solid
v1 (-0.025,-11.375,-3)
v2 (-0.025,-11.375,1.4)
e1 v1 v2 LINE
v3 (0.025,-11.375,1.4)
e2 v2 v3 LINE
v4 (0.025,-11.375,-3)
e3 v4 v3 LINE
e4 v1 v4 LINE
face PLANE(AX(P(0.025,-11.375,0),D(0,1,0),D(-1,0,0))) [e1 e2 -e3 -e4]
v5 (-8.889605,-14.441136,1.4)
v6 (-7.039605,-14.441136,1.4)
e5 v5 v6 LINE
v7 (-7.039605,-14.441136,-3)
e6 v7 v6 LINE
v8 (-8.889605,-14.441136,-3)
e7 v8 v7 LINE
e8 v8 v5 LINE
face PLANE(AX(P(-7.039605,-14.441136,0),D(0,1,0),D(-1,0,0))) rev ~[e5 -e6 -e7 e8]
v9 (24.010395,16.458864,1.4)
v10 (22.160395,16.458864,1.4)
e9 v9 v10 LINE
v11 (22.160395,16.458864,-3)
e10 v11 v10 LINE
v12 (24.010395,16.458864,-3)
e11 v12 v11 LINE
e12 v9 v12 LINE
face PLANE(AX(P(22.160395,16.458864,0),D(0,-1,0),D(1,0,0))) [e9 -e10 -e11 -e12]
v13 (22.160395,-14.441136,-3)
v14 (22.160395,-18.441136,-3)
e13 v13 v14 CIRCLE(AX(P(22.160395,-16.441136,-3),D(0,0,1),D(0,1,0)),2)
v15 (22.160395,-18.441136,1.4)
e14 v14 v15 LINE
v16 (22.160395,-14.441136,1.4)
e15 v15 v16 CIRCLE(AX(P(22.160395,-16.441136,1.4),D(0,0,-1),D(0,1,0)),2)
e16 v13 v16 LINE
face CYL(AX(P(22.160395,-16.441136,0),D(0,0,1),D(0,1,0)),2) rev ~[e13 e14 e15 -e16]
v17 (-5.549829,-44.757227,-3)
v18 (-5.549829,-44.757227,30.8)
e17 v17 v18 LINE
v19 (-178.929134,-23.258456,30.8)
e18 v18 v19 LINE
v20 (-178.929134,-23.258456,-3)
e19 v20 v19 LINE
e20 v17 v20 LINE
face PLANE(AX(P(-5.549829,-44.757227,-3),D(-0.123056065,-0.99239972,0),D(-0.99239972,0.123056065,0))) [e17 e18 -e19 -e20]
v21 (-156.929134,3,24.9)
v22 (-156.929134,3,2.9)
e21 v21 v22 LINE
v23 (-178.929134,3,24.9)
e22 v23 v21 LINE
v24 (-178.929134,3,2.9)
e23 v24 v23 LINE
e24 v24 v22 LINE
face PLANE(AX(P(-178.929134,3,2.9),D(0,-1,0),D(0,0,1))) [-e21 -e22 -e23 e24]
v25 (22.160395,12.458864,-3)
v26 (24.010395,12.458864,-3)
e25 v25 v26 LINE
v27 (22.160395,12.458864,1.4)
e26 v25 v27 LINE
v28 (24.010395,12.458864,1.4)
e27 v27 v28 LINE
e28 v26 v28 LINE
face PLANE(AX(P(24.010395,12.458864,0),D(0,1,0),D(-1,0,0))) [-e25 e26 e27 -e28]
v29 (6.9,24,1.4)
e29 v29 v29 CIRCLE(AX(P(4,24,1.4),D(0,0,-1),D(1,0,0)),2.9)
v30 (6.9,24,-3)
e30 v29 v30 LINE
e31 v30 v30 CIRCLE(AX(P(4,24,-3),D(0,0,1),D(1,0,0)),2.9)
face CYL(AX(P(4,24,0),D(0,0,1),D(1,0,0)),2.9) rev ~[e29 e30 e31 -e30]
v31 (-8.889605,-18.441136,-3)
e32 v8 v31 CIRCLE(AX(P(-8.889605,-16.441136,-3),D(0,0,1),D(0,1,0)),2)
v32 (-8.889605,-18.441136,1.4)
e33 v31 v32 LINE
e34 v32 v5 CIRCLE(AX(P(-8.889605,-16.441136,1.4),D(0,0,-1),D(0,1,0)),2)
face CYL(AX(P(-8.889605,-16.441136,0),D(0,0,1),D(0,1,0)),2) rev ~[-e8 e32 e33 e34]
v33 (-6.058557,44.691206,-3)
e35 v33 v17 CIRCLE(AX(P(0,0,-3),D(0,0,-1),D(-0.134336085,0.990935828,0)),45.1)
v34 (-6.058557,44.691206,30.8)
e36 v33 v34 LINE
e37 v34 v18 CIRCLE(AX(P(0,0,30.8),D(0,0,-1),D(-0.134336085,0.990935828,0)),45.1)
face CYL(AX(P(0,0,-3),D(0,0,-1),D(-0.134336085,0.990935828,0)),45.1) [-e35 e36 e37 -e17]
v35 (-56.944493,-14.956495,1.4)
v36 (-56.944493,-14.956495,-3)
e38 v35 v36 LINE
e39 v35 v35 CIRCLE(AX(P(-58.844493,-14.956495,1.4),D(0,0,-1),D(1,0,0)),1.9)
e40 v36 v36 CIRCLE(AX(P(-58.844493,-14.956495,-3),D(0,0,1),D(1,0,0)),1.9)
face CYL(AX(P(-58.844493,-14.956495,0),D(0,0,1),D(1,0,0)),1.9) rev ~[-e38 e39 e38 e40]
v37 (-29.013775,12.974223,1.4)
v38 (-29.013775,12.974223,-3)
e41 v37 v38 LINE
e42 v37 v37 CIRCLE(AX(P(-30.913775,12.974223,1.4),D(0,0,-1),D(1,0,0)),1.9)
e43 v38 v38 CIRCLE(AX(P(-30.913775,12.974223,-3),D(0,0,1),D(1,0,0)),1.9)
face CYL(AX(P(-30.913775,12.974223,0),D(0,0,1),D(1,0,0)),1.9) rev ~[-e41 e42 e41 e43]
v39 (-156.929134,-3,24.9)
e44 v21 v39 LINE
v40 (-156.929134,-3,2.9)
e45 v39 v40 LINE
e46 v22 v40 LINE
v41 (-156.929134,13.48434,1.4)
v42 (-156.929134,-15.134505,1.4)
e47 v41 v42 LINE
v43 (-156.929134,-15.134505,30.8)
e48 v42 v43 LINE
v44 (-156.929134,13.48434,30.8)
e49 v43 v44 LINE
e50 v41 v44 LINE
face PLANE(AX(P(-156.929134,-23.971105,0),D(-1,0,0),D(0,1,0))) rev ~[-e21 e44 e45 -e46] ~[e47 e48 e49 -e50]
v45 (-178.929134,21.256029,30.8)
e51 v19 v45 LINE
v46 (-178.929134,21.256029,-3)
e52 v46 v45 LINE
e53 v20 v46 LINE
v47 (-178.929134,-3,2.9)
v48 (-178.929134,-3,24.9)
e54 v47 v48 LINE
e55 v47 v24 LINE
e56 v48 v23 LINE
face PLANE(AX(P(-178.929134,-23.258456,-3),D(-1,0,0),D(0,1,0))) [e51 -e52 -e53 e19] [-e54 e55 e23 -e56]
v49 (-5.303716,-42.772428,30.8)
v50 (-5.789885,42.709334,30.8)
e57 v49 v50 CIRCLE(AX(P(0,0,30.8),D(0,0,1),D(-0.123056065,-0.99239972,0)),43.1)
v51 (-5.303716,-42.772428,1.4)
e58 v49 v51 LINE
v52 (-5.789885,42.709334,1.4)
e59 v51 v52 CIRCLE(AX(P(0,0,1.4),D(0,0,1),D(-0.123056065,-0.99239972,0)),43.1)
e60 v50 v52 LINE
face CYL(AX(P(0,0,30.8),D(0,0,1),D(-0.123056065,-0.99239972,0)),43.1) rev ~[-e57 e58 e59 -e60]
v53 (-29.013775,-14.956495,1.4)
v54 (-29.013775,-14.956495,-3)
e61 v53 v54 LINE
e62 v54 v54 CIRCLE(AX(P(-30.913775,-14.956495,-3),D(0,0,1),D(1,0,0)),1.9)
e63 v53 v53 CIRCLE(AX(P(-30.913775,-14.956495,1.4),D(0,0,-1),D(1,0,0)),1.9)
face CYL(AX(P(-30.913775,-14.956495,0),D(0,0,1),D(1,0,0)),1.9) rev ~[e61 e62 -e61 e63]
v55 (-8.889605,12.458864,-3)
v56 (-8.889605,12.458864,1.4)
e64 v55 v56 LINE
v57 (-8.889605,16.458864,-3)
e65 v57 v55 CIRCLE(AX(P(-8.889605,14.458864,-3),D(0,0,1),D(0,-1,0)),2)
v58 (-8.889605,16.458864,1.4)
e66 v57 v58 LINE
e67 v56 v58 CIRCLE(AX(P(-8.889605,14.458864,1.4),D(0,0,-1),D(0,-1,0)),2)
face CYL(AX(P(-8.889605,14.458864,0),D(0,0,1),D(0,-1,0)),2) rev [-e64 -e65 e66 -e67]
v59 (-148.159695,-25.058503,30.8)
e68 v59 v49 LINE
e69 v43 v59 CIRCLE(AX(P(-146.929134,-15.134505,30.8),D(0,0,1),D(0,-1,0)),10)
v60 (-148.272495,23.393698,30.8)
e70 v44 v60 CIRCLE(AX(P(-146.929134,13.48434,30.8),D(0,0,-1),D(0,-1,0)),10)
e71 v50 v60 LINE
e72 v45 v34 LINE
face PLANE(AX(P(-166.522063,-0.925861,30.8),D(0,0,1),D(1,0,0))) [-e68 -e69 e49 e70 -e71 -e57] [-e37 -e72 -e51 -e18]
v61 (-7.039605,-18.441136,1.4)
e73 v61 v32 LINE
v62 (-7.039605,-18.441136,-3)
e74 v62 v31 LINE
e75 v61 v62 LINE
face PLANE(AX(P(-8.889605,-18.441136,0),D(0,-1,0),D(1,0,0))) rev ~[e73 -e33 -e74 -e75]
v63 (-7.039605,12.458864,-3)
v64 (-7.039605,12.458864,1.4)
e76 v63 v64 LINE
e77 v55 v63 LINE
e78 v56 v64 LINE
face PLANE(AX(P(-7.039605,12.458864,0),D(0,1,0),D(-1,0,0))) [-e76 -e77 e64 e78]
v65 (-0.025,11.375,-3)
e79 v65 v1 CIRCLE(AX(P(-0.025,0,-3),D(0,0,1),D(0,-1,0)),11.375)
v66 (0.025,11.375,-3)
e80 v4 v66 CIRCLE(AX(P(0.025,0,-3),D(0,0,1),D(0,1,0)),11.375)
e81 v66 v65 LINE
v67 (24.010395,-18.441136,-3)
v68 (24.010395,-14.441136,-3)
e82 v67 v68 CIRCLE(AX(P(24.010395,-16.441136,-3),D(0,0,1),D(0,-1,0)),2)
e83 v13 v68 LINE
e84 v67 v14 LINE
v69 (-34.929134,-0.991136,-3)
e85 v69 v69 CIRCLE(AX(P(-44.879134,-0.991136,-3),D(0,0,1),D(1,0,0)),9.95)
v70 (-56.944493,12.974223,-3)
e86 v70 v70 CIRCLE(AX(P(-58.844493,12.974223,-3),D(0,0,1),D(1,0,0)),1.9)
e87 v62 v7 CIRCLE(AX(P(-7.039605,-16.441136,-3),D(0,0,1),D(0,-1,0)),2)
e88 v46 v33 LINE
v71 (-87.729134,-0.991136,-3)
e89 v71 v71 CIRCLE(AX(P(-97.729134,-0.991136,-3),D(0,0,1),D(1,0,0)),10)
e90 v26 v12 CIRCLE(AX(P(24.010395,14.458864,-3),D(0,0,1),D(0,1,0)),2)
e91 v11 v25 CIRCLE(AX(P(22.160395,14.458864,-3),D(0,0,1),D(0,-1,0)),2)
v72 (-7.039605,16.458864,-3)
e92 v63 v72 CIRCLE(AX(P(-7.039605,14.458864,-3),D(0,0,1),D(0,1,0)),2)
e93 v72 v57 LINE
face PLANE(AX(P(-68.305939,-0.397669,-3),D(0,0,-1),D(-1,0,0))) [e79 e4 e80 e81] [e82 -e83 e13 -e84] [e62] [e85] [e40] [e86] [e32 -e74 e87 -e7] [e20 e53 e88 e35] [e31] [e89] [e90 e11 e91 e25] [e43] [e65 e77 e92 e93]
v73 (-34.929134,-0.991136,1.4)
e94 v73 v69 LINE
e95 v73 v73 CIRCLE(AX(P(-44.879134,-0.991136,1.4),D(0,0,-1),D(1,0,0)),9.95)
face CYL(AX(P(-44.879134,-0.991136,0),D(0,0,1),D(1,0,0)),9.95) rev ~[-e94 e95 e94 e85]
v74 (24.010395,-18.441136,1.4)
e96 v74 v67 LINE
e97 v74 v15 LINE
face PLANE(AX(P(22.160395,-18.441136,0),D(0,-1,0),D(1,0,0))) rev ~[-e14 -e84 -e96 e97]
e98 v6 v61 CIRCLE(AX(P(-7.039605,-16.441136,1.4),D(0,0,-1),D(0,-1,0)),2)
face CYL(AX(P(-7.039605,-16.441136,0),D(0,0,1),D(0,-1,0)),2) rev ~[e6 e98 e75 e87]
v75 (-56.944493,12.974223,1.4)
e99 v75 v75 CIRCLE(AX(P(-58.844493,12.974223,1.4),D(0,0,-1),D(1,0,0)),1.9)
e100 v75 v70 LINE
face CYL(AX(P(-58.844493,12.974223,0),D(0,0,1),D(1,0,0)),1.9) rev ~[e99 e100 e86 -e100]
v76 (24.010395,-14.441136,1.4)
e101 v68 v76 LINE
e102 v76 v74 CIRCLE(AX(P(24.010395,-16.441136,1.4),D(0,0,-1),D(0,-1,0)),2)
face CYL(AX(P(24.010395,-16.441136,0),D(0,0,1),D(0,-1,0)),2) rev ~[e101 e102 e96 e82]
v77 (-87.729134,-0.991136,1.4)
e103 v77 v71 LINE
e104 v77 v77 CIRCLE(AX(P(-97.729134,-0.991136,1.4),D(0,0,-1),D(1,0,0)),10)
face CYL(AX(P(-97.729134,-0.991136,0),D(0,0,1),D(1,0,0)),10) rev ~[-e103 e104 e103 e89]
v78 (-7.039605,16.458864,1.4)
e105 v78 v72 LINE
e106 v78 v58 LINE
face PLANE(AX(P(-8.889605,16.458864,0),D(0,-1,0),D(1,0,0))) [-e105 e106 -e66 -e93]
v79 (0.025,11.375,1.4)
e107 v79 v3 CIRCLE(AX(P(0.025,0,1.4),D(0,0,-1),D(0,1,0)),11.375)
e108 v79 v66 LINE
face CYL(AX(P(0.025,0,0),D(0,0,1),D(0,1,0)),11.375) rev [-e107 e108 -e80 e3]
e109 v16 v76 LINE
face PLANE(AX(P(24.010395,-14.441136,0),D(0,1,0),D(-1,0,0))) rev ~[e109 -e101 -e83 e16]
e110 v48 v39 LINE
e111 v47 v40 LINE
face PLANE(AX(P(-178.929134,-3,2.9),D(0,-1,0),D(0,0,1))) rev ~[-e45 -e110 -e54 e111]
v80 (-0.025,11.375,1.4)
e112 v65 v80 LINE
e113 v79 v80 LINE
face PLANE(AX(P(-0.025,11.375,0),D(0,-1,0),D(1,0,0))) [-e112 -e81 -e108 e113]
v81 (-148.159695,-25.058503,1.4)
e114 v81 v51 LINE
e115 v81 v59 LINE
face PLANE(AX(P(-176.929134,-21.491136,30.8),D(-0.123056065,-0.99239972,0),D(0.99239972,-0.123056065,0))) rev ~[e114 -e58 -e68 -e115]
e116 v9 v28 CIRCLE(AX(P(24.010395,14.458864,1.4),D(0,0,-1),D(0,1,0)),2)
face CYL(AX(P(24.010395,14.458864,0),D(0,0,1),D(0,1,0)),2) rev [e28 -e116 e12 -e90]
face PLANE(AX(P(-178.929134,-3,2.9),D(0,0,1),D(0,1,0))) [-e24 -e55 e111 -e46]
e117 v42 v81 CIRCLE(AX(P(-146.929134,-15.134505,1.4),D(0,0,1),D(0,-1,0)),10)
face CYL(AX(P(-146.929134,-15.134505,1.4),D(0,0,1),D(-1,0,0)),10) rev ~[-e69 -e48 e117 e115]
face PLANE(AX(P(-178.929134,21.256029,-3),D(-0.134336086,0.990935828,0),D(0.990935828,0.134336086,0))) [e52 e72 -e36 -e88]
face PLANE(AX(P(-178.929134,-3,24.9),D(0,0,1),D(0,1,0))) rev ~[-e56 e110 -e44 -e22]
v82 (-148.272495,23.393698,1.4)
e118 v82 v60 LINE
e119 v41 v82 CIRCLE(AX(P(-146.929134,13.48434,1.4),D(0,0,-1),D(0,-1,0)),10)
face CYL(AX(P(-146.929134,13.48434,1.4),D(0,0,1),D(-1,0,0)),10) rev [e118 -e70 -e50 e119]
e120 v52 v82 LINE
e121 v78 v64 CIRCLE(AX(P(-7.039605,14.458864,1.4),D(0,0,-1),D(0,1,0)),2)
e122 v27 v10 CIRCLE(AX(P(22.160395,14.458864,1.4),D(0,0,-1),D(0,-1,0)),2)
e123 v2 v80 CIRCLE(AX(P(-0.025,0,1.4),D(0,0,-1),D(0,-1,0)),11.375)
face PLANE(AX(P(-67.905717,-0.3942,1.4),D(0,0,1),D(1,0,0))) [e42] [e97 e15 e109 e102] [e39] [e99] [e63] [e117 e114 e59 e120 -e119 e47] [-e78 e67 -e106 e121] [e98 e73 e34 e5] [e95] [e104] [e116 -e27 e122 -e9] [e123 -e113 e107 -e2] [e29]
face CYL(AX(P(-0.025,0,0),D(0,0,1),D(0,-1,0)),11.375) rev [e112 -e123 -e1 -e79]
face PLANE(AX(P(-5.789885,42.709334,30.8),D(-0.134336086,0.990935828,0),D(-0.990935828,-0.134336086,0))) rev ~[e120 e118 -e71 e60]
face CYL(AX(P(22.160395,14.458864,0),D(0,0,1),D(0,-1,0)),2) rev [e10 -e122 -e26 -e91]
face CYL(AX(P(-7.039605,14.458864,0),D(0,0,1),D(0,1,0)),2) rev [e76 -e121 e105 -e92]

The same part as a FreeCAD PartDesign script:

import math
import FreeCAD as App
import Part
import Sketcher
Q = App.Units.Quantity


def edges_at(feature, points):
    """Names of the edges that pass closest to the given points."""
    edges = feature.Shape.Edges
    near = lambda p: min(range(len(edges)), key=lambda i: edges[i].distToShape(Part.Vertex(*p))[0])
    return sorted({f"Edge{near(p) + 1}" for p in points})


def add_polygon(sketch, points):
    """Adds a closed chain of lines whose ends are joined by coincident constraints."""
    first, n = sketch.GeometryCount, len(points)
    for a, b in zip(points, points[1:] + points[:1]):
        sketch.addGeometry(Part.LineSegment(App.Vector(*a, 0), App.Vector(*b, 0)), False)
    for i in range(n):
        sketch.addConstraint(Sketcher.Constraint("Coincident", first + i, 2, first + (i + 1) % n, 1))

doc = App.newDocument("Part")
params = doc.addObject("Spreadsheet::Sheet", "Params")
for row, (alias, value) in enumerate([
    ("sketch1_diameter", "20 mm"),
    ("sketch1_radius", "2 mm"),
    ("sketch1_diameter2", "3.8 mm"),
    ("sketch1_diameter3", "19.9 mm"),
    ("sketch1_diameter4", "5.8 mm"),
    ("pad1_length", "30.8 mm"),
    ("sketch2_diameter", "20 mm"),
    ("sketch2_radius", "2 mm"),
    ("sketch2_diameter2", "3.8 mm"),
    ("sketch2_diameter3", "19.9 mm"),
    ("sketch2_diameter4", "5.8 mm"),
    ("pad2_length", "3 mm"),
    ("sketch3_radius", "45.1 mm"),
    ("sketch4_radius", "43.1 mm"),
    ("sketch4_height", "41 mm"),
    ("pocket1_length", "29.4 mm"),
    ("sketch5_diameter", "20 mm"),
    ("sketch5_radius", "2 mm"),
    ("sketch5_diameter2", "19.9 mm"),
    ("sketch5_diameter3", "3.8 mm"),
    ("sketch5_diameter4", "5.8 mm"),
    ("sketch6_height", "41 mm"),
    ("pad4_length", "30.8 mm"),
    ("fillet_radius", "10 mm"),
    ("sketch7_width", "6 mm"),
    ("sketch7_height", "22 mm"),
], start=1):
    params.set(f"A{row}", alias)
    params.set(f"B{row}", "=" + value)
    params.setAlias(f"B{row}", alias)

body = doc.addObject("PartDesign::Body", "Body")

# Sketch on XY plane
sketch1 = body.newObject("Sketcher::SketchObject", "Sketch")
sketch1.AttachmentSupport = (doc.getObject("XY_Plane"), [""])
sketch1.MapMode = "FlatFace"
sketch1.addGeometry([
    Part.LineSegment(App.Vector(-176.929134, 19.508864, 0), App.Vector(-176.929134, -21.491136, 0)),  # 0
    Part.LineSegment(App.Vector(-176.929134, -21.491136, 0), App.Vector(-5.303716, -42.772428, 0)),  # 1
    Part.ArcOfCircle(Part.Circle(App.Vector(0, 0, 0), App.Vector(0, 0, 1), 43.1), math.radians(-97.06851), math.radians(97.720231)),  # 2
    Part.LineSegment(App.Vector(-5.789885, 42.709334, 0), App.Vector(-176.929134, 19.508864, 0)),  # 3
    Part.Circle(App.Vector(-58.844493, -14.956495, 0), App.Vector(0, 0, 1), 1.9),  # 4
    Part.Circle(App.Vector(-97.729134, -0.991136, 0), App.Vector(0, 0, 1), 10),  # 5
    Part.Circle(App.Vector(-44.879134, -0.991136, 0), App.Vector(0, 0, 1), 9.95),  # 6
    Part.Circle(App.Vector(-30.913775, -14.956495, 0), App.Vector(0, 0, 1), 1.9),  # 7
    Part.ArcOfCircle(Part.Circle(App.Vector(-7.039605, -16.441136, 0), App.Vector(0, 0, 1), 2), math.radians(-90), math.radians(90)),  # 8
    Part.LineSegment(App.Vector(-7.039605, -18.441136, 0), App.Vector(-8.889605, -18.441136, 0)),  # 9
    Part.ArcOfCircle(Part.Circle(App.Vector(-8.889605, -16.441136, 0), App.Vector(0, 0, 1), 2), math.radians(90), math.radians(270)),  # 10
    Part.LineSegment(App.Vector(-8.889605, -14.441136, 0), App.Vector(-7.039605, -14.441136, 0)),  # 11
    Part.ArcOfCircle(Part.Circle(App.Vector(24.010395, -16.441136, 0), App.Vector(0, 0, 1), 2), math.radians(-90), math.radians(90)),  # 12
    Part.LineSegment(App.Vector(24.010395, -18.441136, 0), App.Vector(22.160395, -18.441136, 0)),  # 13
    Part.ArcOfCircle(Part.Circle(App.Vector(22.160395, -16.441136, 0), App.Vector(0, 0, 1), 2), math.radians(90), math.radians(270)),  # 14
    Part.LineSegment(App.Vector(22.160395, -14.441136, 0), App.Vector(24.010395, -14.441136, 0)),  # 15
    Part.LineSegment(App.Vector(0.025, -11.375, 0), App.Vector(-0.025, -11.375, 0)),  # 16
    Part.ArcOfCircle(Part.Circle(App.Vector(-0.025, 0, 0), App.Vector(0, 0, 1), 11.375), math.radians(90), math.radians(270)),  # 17
    Part.LineSegment(App.Vector(-0.025, 11.375, 0), App.Vector(0.025, 11.375, 0)),  # 18
    Part.ArcOfCircle(Part.Circle(App.Vector(0.025, 0, 0), App.Vector(0, 0, 1), 11.375), math.radians(-90), math.radians(90)),  # 19
    Part.Circle(App.Vector(-58.844493, 12.974223, 0), App.Vector(0, 0, 1), 1.9),  # 20
    Part.Circle(App.Vector(-30.913775, 12.974223, 0), App.Vector(0, 0, 1), 1.9),  # 21
    Part.LineSegment(App.Vector(-7.039605, 12.458864, 0), App.Vector(-8.889605, 12.458864, 0)),  # 22
    Part.ArcOfCircle(Part.Circle(App.Vector(-8.889605, 14.458864, 0), App.Vector(0, 0, 1), 2), math.radians(90), math.radians(270)),  # 23
    Part.LineSegment(App.Vector(-8.889605, 16.458864, 0), App.Vector(-7.039605, 16.458864, 0)),  # 24
    Part.ArcOfCircle(Part.Circle(App.Vector(-7.039605, 14.458864, 0), App.Vector(0, 0, 1), 2), math.radians(-90), math.radians(90)),  # 25
    Part.ArcOfCircle(Part.Circle(App.Vector(22.160395, 14.458864, 0), App.Vector(0, 0, 1), 2), math.radians(90), math.radians(270)),  # 26
    Part.LineSegment(App.Vector(22.160395, 16.458864, 0), App.Vector(24.010395, 16.458864, 0)),  # 27
    Part.ArcOfCircle(Part.Circle(App.Vector(24.010395, 14.458864, 0), App.Vector(0, 0, 1), 2), math.radians(-90), math.radians(90)),  # 28
    Part.LineSegment(App.Vector(24.010395, 12.458864, 0), App.Vector(22.160395, 12.458864, 0)),  # 29
    Part.Circle(App.Vector(4, 24, 0), App.Vector(0, 0, 1), 2.9),  # 30
], False)
sketch1.addConstraint([
    Sketcher.Constraint("Coincident", 0, 2, 1, 1),
    Sketcher.Constraint("Tangent", 1, 2, 2, 1),
    Sketcher.Constraint("Tangent", 2, 2, 3, 1),
    Sketcher.Constraint("Coincident", 3, 2, 0, 1),
    Sketcher.Constraint("Tangent", 8, 1, 9, 1),
    Sketcher.Constraint("Tangent", 9, 2, 10, 2),
    Sketcher.Constraint("Tangent", 10, 1, 11, 1),
    Sketcher.Constraint("Tangent", 11, 2, 8, 2),
    Sketcher.Constraint("Tangent", 12, 1, 13, 1),
    Sketcher.Constraint("Tangent", 13, 2, 14, 2),
    Sketcher.Constraint("Tangent", 14, 1, 15, 1),
    Sketcher.Constraint("Tangent", 15, 2, 12, 2),
    Sketcher.Constraint("Tangent", 16, 2, 17, 2),
    Sketcher.Constraint("Tangent", 17, 1, 18, 1),
    Sketcher.Constraint("Tangent", 18, 2, 19, 2),
    Sketcher.Constraint("Tangent", 19, 1, 16, 1),
    Sketcher.Constraint("Tangent", 22, 2, 23, 2),
    Sketcher.Constraint("Tangent", 23, 1, 24, 1),
    Sketcher.Constraint("Tangent", 24, 2, 25, 2),
    Sketcher.Constraint("Tangent", 25, 1, 22, 1),
    Sketcher.Constraint("Tangent", 26, 1, 27, 1),
    Sketcher.Constraint("Tangent", 27, 2, 28, 2),
    Sketcher.Constraint("Tangent", 28, 1, 29, 1),
    Sketcher.Constraint("Tangent", 29, 2, 26, 2),
    Sketcher.Constraint("Vertical", 0),
    Sketcher.Constraint("Horizontal", 9),
    Sketcher.Constraint("Horizontal", 11),
    Sketcher.Constraint("Horizontal", 13),
    Sketcher.Constraint("Horizontal", 15),
    Sketcher.Constraint("Horizontal", 16),
    Sketcher.Constraint("Horizontal", 18),
    Sketcher.Constraint("Horizontal", 22),
    Sketcher.Constraint("Horizontal", 24),
    Sketcher.Constraint("Horizontal", 27),
    Sketcher.Constraint("Horizontal", 29),
    Sketcher.Constraint("Coincident", 2, 3, -1, 1),
    Sketcher.Constraint("Equal", 4, 7),
    Sketcher.Constraint("Equal", 10, 12),
    Sketcher.Constraint("Equal", 7, 20),
    Sketcher.Constraint("Equal", 20, 21),
    Sketcher.Constraint("Equal", 14, 23),
    Sketcher.Constraint("Equal", 25, 26),
    Sketcher.Constraint("Symmetric", 17, 3, 19, 3, -1, 1),
    Sketcher.Constraint("Horizontal", 5, 3, 6, 3),
    Sketcher.Constraint("Horizontal", 4, 3, 7, 3),
    Sketcher.Constraint("Horizontal", 10, 3, 12, 3),
    Sketcher.Constraint("Horizontal", 20, 3, 21, 3),
    Sketcher.Constraint("Horizontal", 25, 3, 26, 3),
    Sketcher.Constraint("Vertical", 4, 3, 20, 3),
    Sketcher.Constraint("Vertical", 7, 3, 21, 3),
    Sketcher.Constraint("Vertical", 10, 3, 23, 3),
    Sketcher.Constraint("Vertical", 8, 3, 25, 3),
    Sketcher.Constraint("Vertical", 14, 3, 26, 3),
    Sketcher.Constraint("Vertical", 12, 3, 28, 3),
    Sketcher.Constraint("Equal", 11, 13),
    Sketcher.Constraint("Diameter", 5, Q("20 mm")),
    Sketcher.Constraint("Radius", 8, Q("2 mm")),
    Sketcher.Constraint("Diameter", 4, Q("3.8 mm")),
    Sketcher.Constraint("Diameter", 6, Q("19.9 mm")),
    Sketcher.Constraint("Diameter", 30, Q("5.8 mm")),
    Sketcher.Constraint("Radius", 2, Q("43.1 mm")),
    Sketcher.Constraint("DistanceY", 0, 2, 0, 1, Q("41 mm")),
    Sketcher.Constraint("DistanceX", -1, 1, 30, 3, Q("4 mm")),
    Sketcher.Constraint("DistanceY", -1, 1, 30, 3, Q("24 mm")),
    Sketcher.Constraint("Radius", 17, Q("11.375 mm")),
    Sketcher.Constraint("DistanceX", 9, 2, 9, 1, Q("1.85 mm")),
    Sketcher.Constraint("DistanceX", 16, 2, 16, 1, Q("0.05 mm")),
    Sketcher.Constraint("DistanceX", 10, 3, 12, 3, Q("32.9 mm")),
    Sketcher.Constraint("DistanceY", 10, 3, 23, 3, Q("30.9 mm")),
    Sketcher.Constraint("DistanceX", 0, 2, 5, 3, Q("79.2 mm")),
    Sketcher.Constraint("DistanceY", 0, 2, 5, 3, Q("20.5 mm")),
    Sketcher.Constraint("DistanceX", 5, 3, 6, 3, Q("52.85 mm")),
    Sketcher.Constraint("DistanceY", 8, 3, 6, 3, Q("15.45 mm")),
    Sketcher.Constraint("Distance", 1, Q("172.939809 mm")),
    Sketcher.Constraint("DistanceX", 5, 3, 4, 3, Q("38.884641 mm")),
    Sketcher.Constraint("DistanceY", 4, 3, 5, 3, Q("13.965359 mm")),
    Sketcher.Constraint("DistanceX", 6, 3, 7, 3, Q("13.965359 mm")),
    Sketcher.Constraint("DistanceX", 7, 3, 8, 3, Q("23.87417 mm")),
    Sketcher.Constraint("DistanceY", 6, 3, 20, 3, Q("13.965359 mm")),
    Sketcher.Constraint("DistanceX", 8, 3, 1, 2, Q("1.735889 mm")),
])
sketch1.setExpression("Constraints[55]", "Params.sketch1_diameter")
sketch1.setExpression("Constraints[56]", "Params.sketch1_radius")
sketch1.setExpression("Constraints[57]", "Params.sketch1_diameter2")
sketch1.setExpression("Constraints[58]", "Params.sketch1_diameter3")
sketch1.setExpression("Constraints[59]", "Params.sketch1_diameter4")
pad1 = body.newObject("PartDesign::Pad", "Pad")
pad1.Profile = sketch1
pad1.setExpression("Length", "Params.pad1_length")

# Sketch on XY plane
sketch2 = body.newObject("Sketcher::SketchObject", "Sketch001")
sketch2.AttachmentSupport = (doc.getObject("XY_Plane"), [""])
sketch2.MapMode = "FlatFace"
sketch2.addGeometry([
    Part.LineSegment(App.Vector(-176.929134, 19.508864, 0), App.Vector(-176.929134, -21.491136, 0)),  # 0
    Part.LineSegment(App.Vector(-176.929134, -21.491136, 0), App.Vector(-5.303716, -42.772428, 0)),  # 1
    Part.ArcOfCircle(Part.Circle(App.Vector(0, 0, 0), App.Vector(0, 0, 1), 43.1), math.radians(-97.06851), math.radians(97.720231)),  # 2
    Part.LineSegment(App.Vector(-5.789885, 42.709334, 0), App.Vector(-176.929134, 19.508864, 0)),  # 3
    Part.Circle(App.Vector(-58.844493, -14.956495, 0), App.Vector(0, 0, 1), 1.9),  # 4
    Part.Circle(App.Vector(-97.729134, -0.991136, 0), App.Vector(0, 0, 1), 10),  # 5
    Part.Circle(App.Vector(-44.879134, -0.991136, 0), App.Vector(0, 0, 1), 9.95),  # 6
    Part.Circle(App.Vector(-30.913775, -14.956495, 0), App.Vector(0, 0, 1), 1.9),  # 7
    Part.ArcOfCircle(Part.Circle(App.Vector(-7.039605, -16.441136, 0), App.Vector(0, 0, 1), 2), math.radians(-90), math.radians(90)),  # 8
    Part.LineSegment(App.Vector(-7.039605, -18.441136, 0), App.Vector(-8.889605, -18.441136, 0)),  # 9
    Part.ArcOfCircle(Part.Circle(App.Vector(-8.889605, -16.441136, 0), App.Vector(0, 0, 1), 2), math.radians(90), math.radians(270)),  # 10
    Part.LineSegment(App.Vector(-8.889605, -14.441136, 0), App.Vector(-7.039605, -14.441136, 0)),  # 11
    Part.ArcOfCircle(Part.Circle(App.Vector(24.010395, -16.441136, 0), App.Vector(0, 0, 1), 2), math.radians(-90), math.radians(90)),  # 12
    Part.LineSegment(App.Vector(24.010395, -18.441136, 0), App.Vector(22.160395, -18.441136, 0)),  # 13
    Part.ArcOfCircle(Part.Circle(App.Vector(22.160395, -16.441136, 0), App.Vector(0, 0, 1), 2), math.radians(90), math.radians(270)),  # 14
    Part.LineSegment(App.Vector(22.160395, -14.441136, 0), App.Vector(24.010395, -14.441136, 0)),  # 15
    Part.LineSegment(App.Vector(0.025, -11.375, 0), App.Vector(-0.025, -11.375, 0)),  # 16
    Part.ArcOfCircle(Part.Circle(App.Vector(-0.025, 0, 0), App.Vector(0, 0, 1), 11.375), math.radians(90), math.radians(270)),  # 17
    Part.LineSegment(App.Vector(-0.025, 11.375, 0), App.Vector(0.025, 11.375, 0)),  # 18
    Part.ArcOfCircle(Part.Circle(App.Vector(0.025, 0, 0), App.Vector(0, 0, 1), 11.375), math.radians(-90), math.radians(90)),  # 19
    Part.Circle(App.Vector(-58.844493, 12.974223, 0), App.Vector(0, 0, 1), 1.9),  # 20
    Part.Circle(App.Vector(-30.913775, 12.974223, 0), App.Vector(0, 0, 1), 1.9),  # 21
    Part.LineSegment(App.Vector(-7.039605, 12.458864, 0), App.Vector(-8.889605, 12.458864, 0)),  # 22
    Part.ArcOfCircle(Part.Circle(App.Vector(-8.889605, 14.458864, 0), App.Vector(0, 0, 1), 2), math.radians(90), math.radians(270)),  # 23
    Part.LineSegment(App.Vector(-8.889605, 16.458864, 0), App.Vector(-7.039605, 16.458864, 0)),  # 24
    Part.ArcOfCircle(Part.Circle(App.Vector(-7.039605, 14.458864, 0), App.Vector(0, 0, 1), 2), math.radians(-90), math.radians(90)),  # 25
    Part.ArcOfCircle(Part.Circle(App.Vector(22.160395, 14.458864, 0), App.Vector(0, 0, 1), 2), math.radians(90), math.radians(270)),  # 26
    Part.LineSegment(App.Vector(22.160395, 16.458864, 0), App.Vector(24.010395, 16.458864, 0)),  # 27
    Part.ArcOfCircle(Part.Circle(App.Vector(24.010395, 14.458864, 0), App.Vector(0, 0, 1), 2), math.radians(-90), math.radians(90)),  # 28
    Part.LineSegment(App.Vector(24.010395, 12.458864, 0), App.Vector(22.160395, 12.458864, 0)),  # 29
    Part.Circle(App.Vector(4, 24, 0), App.Vector(0, 0, 1), 2.9),  # 30
], False)
sketch2.addConstraint([
    Sketcher.Constraint("Coincident", 0, 2, 1, 1),
    Sketcher.Constraint("Tangent", 1, 2, 2, 1),
    Sketcher.Constraint("Tangent", 2, 2, 3, 1),
    Sketcher.Constraint("Coincident", 3, 2, 0, 1),
    Sketcher.Constraint("Tangent", 8, 1, 9, 1),
    Sketcher.Constraint("Tangent", 9, 2, 10, 2),
    Sketcher.Constraint("Tangent", 10, 1, 11, 1),
    Sketcher.Constraint("Tangent", 11, 2, 8, 2),
    Sketcher.Constraint("Tangent", 12, 1, 13, 1),
    Sketcher.Constraint("Tangent", 13, 2, 14, 2),
    Sketcher.Constraint("Tangent", 14, 1, 15, 1),
    Sketcher.Constraint("Tangent", 15, 2, 12, 2),
    Sketcher.Constraint("Tangent", 16, 2, 17, 2),
    Sketcher.Constraint("Tangent", 17, 1, 18, 1),
    Sketcher.Constraint("Tangent", 18, 2, 19, 2),
    Sketcher.Constraint("Tangent", 19, 1, 16, 1),
    Sketcher.Constraint("Tangent", 22, 2, 23, 2),
    Sketcher.Constraint("Tangent", 23, 1, 24, 1),
    Sketcher.Constraint("Tangent", 24, 2, 25, 2),
    Sketcher.Constraint("Tangent", 25, 1, 22, 1),
    Sketcher.Constraint("Tangent", 26, 1, 27, 1),
    Sketcher.Constraint("Tangent", 27, 2, 28, 2),
    Sketcher.Constraint("Tangent", 28, 1, 29, 1),
    Sketcher.Constraint("Tangent", 29, 2, 26, 2),
    Sketcher.Constraint("Vertical", 0),
    Sketcher.Constraint("Horizontal", 9),
    Sketcher.Constraint("Horizontal", 11),
    Sketcher.Constraint("Horizontal", 13),
    Sketcher.Constraint("Horizontal", 15),
    Sketcher.Constraint("Horizontal", 16),
    Sketcher.Constraint("Horizontal", 18),
    Sketcher.Constraint("Horizontal", 22),
    Sketcher.Constraint("Horizontal", 24),
    Sketcher.Constraint("Horizontal", 27),
    Sketcher.Constraint("Horizontal", 29),
    Sketcher.Constraint("Coincident", 2, 3, -1, 1),
    Sketcher.Constraint("Equal", 4, 7),
    Sketcher.Constraint("Equal", 10, 12),
    Sketcher.Constraint("Equal", 7, 20),
    Sketcher.Constraint("Equal", 20, 21),
    Sketcher.Constraint("Equal", 14, 23),
    Sketcher.Constraint("Equal", 25, 26),
    Sketcher.Constraint("Symmetric", 17, 3, 19, 3, -1, 1),
    Sketcher.Constraint("Horizontal", 5, 3, 6, 3),
    Sketcher.Constraint("Horizontal", 4, 3, 7, 3),
    Sketcher.Constraint("Horizontal", 10, 3, 12, 3),
    Sketcher.Constraint("Horizontal", 20, 3, 21, 3),
    Sketcher.Constraint("Horizontal", 25, 3, 26, 3),
    Sketcher.Constraint("Vertical", 4, 3, 20, 3),
    Sketcher.Constraint("Vertical", 7, 3, 21, 3),
    Sketcher.Constraint("Vertical", 10, 3, 23, 3),
    Sketcher.Constraint("Vertical", 8, 3, 25, 3),
    Sketcher.Constraint("Vertical", 14, 3, 26, 3),
    Sketcher.Constraint("Vertical", 12, 3, 28, 3),
    Sketcher.Constraint("Equal", 11, 13),
    Sketcher.Constraint("Diameter", 5, Q("20 mm")),
    Sketcher.Constraint("Radius", 8, Q("2 mm")),
    Sketcher.Constraint("Diameter", 4, Q("3.8 mm")),
    Sketcher.Constraint("Diameter", 6, Q("19.9 mm")),
    Sketcher.Constraint("Diameter", 30, Q("5.8 mm")),
    Sketcher.Constraint("Radius", 2, Q("43.1 mm")),
    Sketcher.Constraint("DistanceY", 0, 2, 0, 1, Q("41 mm")),
    Sketcher.Constraint("DistanceX", -1, 1, 30, 3, Q("4 mm")),
    Sketcher.Constraint("DistanceY", -1, 1, 30, 3, Q("24 mm")),
    Sketcher.Constraint("Radius", 17, Q("11.375 mm")),
    Sketcher.Constraint("DistanceX", 9, 2, 9, 1, Q("1.85 mm")),
    Sketcher.Constraint("DistanceX", 16, 2, 16, 1, Q("0.05 mm")),
    Sketcher.Constraint("DistanceX", 10, 3, 12, 3, Q("32.9 mm")),
    Sketcher.Constraint("DistanceY", 10, 3, 23, 3, Q("30.9 mm")),
    Sketcher.Constraint("DistanceX", 0, 2, 5, 3, Q("79.2 mm")),
    Sketcher.Constraint("DistanceY", 0, 2, 5, 3, Q("20.5 mm")),
    Sketcher.Constraint("DistanceX", 5, 3, 6, 3, Q("52.85 mm")),
    Sketcher.Constraint("DistanceY", 8, 3, 6, 3, Q("15.45 mm")),
    Sketcher.Constraint("Distance", 1, Q("172.939809 mm")),
    Sketcher.Constraint("DistanceX", 5, 3, 4, 3, Q("38.884641 mm")),
    Sketcher.Constraint("DistanceY", 4, 3, 5, 3, Q("13.965359 mm")),
    Sketcher.Constraint("DistanceX", 6, 3, 7, 3, Q("13.965359 mm")),
    Sketcher.Constraint("DistanceX", 7, 3, 8, 3, Q("23.87417 mm")),
    Sketcher.Constraint("DistanceY", 6, 3, 20, 3, Q("13.965359 mm")),
    Sketcher.Constraint("DistanceX", 8, 3, 1, 2, Q("1.735889 mm")),
])
sketch2.setExpression("Constraints[55]", "Params.sketch2_diameter")
sketch2.setExpression("Constraints[56]", "Params.sketch2_radius")
sketch2.setExpression("Constraints[57]", "Params.sketch2_diameter2")
sketch2.setExpression("Constraints[58]", "Params.sketch2_diameter3")
sketch2.setExpression("Constraints[59]", "Params.sketch2_diameter4")
pad2 = body.newObject("PartDesign::Pad", "Pad001")
pad2.Profile = sketch2
pad2.setExpression("Length", "Params.pad2_length")
pad2.Reversed = True

# Sketch on XY plane
sketch3 = body.newObject("Sketcher::SketchObject", "Sketch002")
sketch3.AttachmentSupport = (doc.getObject("XY_Plane"), [""])
sketch3.MapMode = "FlatFace"
sketch3.AttachmentOffset = App.Placement(App.Vector(0, 0, -3), App.Rotation())
sketch3.addGeometry([
    Part.LineSegment(App.Vector(-5.549829, -44.757227, 0), App.Vector(-178.929134, -23.258456, 0)),
    Part.LineSegment(App.Vector(-178.929134, -23.258456, 0), App.Vector(-178.929134, 21.256029, 0)),
    Part.LineSegment(App.Vector(-178.929134, 21.256029, 0), App.Vector(-6.058557, 44.691206, 0)),
    Part.ArcOfCircle(Part.Circle(App.Vector(0, 0, 0), App.Vector(0, 0, 1), 45.1), math.radians(-97.06851), math.radians(97.720231)),
], False)
sketch3.addConstraint([
    Sketcher.Constraint("Coincident", 0, 2, 1, 1),
    Sketcher.Constraint("Coincident", 1, 2, 2, 1),
    Sketcher.Constraint("Tangent", 2, 2, 3, 2),
    Sketcher.Constraint("Tangent", 3, 1, 0, 1),
    Sketcher.Constraint("Vertical", 1),
    Sketcher.Constraint("Coincident", 3, 3, -1, 1),
    Sketcher.Constraint("Radius", 3, Q("45.1 mm")),
    Sketcher.Constraint("Distance", 0, Q("174.707129 mm")),
    Sketcher.Constraint("Distance", 2, Q("174.451838 mm")),
    Sketcher.Constraint("DistanceY", 1, 1, 1, 2, Q("44.514484 mm")),
])
sketch3.setExpression("Constraints[6]", "Params.sketch3_radius")
pad3 = body.newObject("PartDesign::Pad", "Pad002")
pad3.Profile = sketch3
pad3.Type = "UpToLast"

# Sketch on XY plane
sketch4 = body.newObject("Sketcher::SketchObject", "Sketch003")
sketch4.AttachmentSupport = (doc.getObject("XY_Plane"), [""])
sketch4.MapMode = "FlatFace"
sketch4.AttachmentOffset = App.Placement(App.Vector(0, 0, 30.8), App.Rotation())
sketch4.addGeometry([
    Part.LineSegment(App.Vector(-5.789885, 42.709334, 0), App.Vector(-176.929134, 19.508864, 0)),
    Part.LineSegment(App.Vector(-176.929134, 19.508864, 0), App.Vector(-176.929134, -21.491136, 0)),
    Part.LineSegment(App.Vector(-176.929134, -21.491136, 0), App.Vector(-5.303716, -42.772428, 0)),
    Part.ArcOfCircle(Part.Circle(App.Vector(0, 0, 0), App.Vector(0, 0, 1), 43.1), math.radians(-97.06851), math.radians(97.720231)),
], False)
sketch4.addConstraint([
    Sketcher.Constraint("Coincident", 0, 2, 1, 1),
    Sketcher.Constraint("Coincident", 1, 2, 2, 1),
    Sketcher.Constraint("Tangent", 2, 2, 3, 1),
    Sketcher.Constraint("Tangent", 3, 2, 0, 1),
    Sketcher.Constraint("Vertical", 1),
    Sketcher.Constraint("Coincident", 3, 3, -1, 1),
    Sketcher.Constraint("Radius", 3, Q("43.1 mm")),
    Sketcher.Constraint("DistanceY", 1, 2, 1, 1, Q("41 mm")),
    Sketcher.Constraint("Distance", 2, Q("172.939809 mm")),
    Sketcher.Constraint("DistanceX", 3, 2, 2, 2, Q("0.486169 mm")),
])
sketch4.setExpression("Constraints[6]", "Params.sketch4_radius")
sketch4.setExpression("Constraints[7]", "Params.sketch4_height")
pocket1 = body.newObject("PartDesign::Pocket", "Pocket")
pocket1.Profile = sketch4
pocket1.setExpression("Length", "Params.pocket1_length")

# Sketch on XY plane
sketch5 = body.newObject("Sketcher::SketchObject", "Sketch004")
sketch5.AttachmentSupport = (doc.getObject("XY_Plane"), [""])
sketch5.MapMode = "FlatFace"
sketch5.addGeometry([
    Part.Circle(App.Vector(-44.879134, -0.991136, 0), App.Vector(0, 0, 1), 9.95),  # 0
    Part.Circle(App.Vector(-30.913775, 12.974223, 0), App.Vector(0, 0, 1), 1.9),  # 1
    Part.Circle(App.Vector(-58.844493, -14.956495, 0), App.Vector(0, 0, 1), 1.9),  # 2
    Part.Circle(App.Vector(-30.913775, -14.956495, 0), App.Vector(0, 0, 1), 1.9),  # 3
    Part.Circle(App.Vector(-58.844493, 12.974223, 0), App.Vector(0, 0, 1), 1.9),  # 4
    Part.Circle(App.Vector(-97.729134, -0.991136, 0), App.Vector(0, 0, 1), 10),  # 5
    Part.Circle(App.Vector(4, 24, 0), App.Vector(0, 0, 1), 2.9),  # 6
    Part.LineSegment(App.Vector(0.025, 11.375, 0), App.Vector(-0.025, 11.375, 0)),  # 7
    Part.ArcOfCircle(Part.Circle(App.Vector(-0.025, 0, 0), App.Vector(0, 0, 1), 11.375), math.radians(90), math.radians(270)),  # 8
    Part.LineSegment(App.Vector(-0.025, -11.375, 0), App.Vector(0.025, -11.375, 0)),  # 9
    Part.ArcOfCircle(Part.Circle(App.Vector(0.025, 0, 0), App.Vector(0, 0, 1), 11.375), math.radians(-90), math.radians(90)),  # 10
    Part.LineSegment(App.Vector(24.010395, 16.458864, 0), App.Vector(22.160395, 16.458864, 0)),  # 11
    Part.ArcOfCircle(Part.Circle(App.Vector(22.160395, 14.458864, 0), App.Vector(0, 0, 1), 2), math.radians(90), math.radians(270)),  # 12
    Part.LineSegment(App.Vector(22.160395, 12.458864, 0), App.Vector(24.010395, 12.458864, 0)),  # 13
    Part.ArcOfCircle(Part.Circle(App.Vector(24.010395, 14.458864, 0), App.Vector(0, 0, 1), 2), math.radians(-90), math.radians(90)),  # 14
    Part.LineSegment(App.Vector(-7.039605, 16.458864, 0), App.Vector(-8.889605, 16.458864, 0)),  # 15
    Part.ArcOfCircle(Part.Circle(App.Vector(-8.889605, 14.458864, 0), App.Vector(0, 0, 1), 2), math.radians(90), math.radians(270)),  # 16
    Part.LineSegment(App.Vector(-8.889605, 12.458864, 0), App.Vector(-7.039605, 12.458864, 0)),  # 17
    Part.ArcOfCircle(Part.Circle(App.Vector(-7.039605, 14.458864, 0), App.Vector(0, 0, 1), 2), math.radians(-90), math.radians(90)),  # 18
    Part.LineSegment(App.Vector(22.160395, -18.441136, 0), App.Vector(24.010395, -18.441136, 0)),  # 19
    Part.ArcOfCircle(Part.Circle(App.Vector(24.010395, -16.441136, 0), App.Vector(0, 0, 1), 2), math.radians(-90), math.radians(90)),  # 20
    Part.LineSegment(App.Vector(24.010395, -14.441136, 0), App.Vector(22.160395, -14.441136, 0)),  # 21
    Part.ArcOfCircle(Part.Circle(App.Vector(22.160395, -16.441136, 0), App.Vector(0, 0, 1), 2), math.radians(90), math.radians(270)),  # 22
    Part.LineSegment(App.Vector(-8.889605, -18.441136, 0), App.Vector(-7.039605, -18.441136, 0)),  # 23
    Part.ArcOfCircle(Part.Circle(App.Vector(-7.039605, -16.441136, 0), App.Vector(0, 0, 1), 2), math.radians(-90), math.radians(90)),  # 24
    Part.LineSegment(App.Vector(-7.039605, -14.441136, 0), App.Vector(-8.889605, -14.441136, 0)),  # 25
    Part.ArcOfCircle(Part.Circle(App.Vector(-8.889605, -16.441136, 0), App.Vector(0, 0, 1), 2), math.radians(90), math.radians(270)),  # 26
], False)
sketch5.addConstraint([
    Sketcher.Constraint("Tangent", 7, 2, 8, 1),
    Sketcher.Constraint("Tangent", 8, 2, 9, 1),
    Sketcher.Constraint("Tangent", 9, 2, 10, 1),
    Sketcher.Constraint("Tangent", 10, 2, 7, 1),
    Sketcher.Constraint("Tangent", 11, 2, 12, 1),
    Sketcher.Constraint("Tangent", 12, 2, 13, 1),
    Sketcher.Constraint("Tangent", 13, 2, 14, 1),
    Sketcher.Constraint("Tangent", 14, 2, 11, 1),
    Sketcher.Constraint("Tangent", 15, 2, 16, 1),
    Sketcher.Constraint("Tangent", 16, 2, 17, 1),
    Sketcher.Constraint("Tangent", 17, 2, 18, 1),
    Sketcher.Constraint("Tangent", 18, 2, 15, 1),
    Sketcher.Constraint("Tangent", 19, 2, 20, 1),
    Sketcher.Constraint("Tangent", 20, 2, 21, 1),
    Sketcher.Constraint("Tangent", 21, 2, 22, 1),
    Sketcher.Constraint("Tangent", 22, 2, 19, 1),
    Sketcher.Constraint("Tangent", 23, 2, 24, 1),
    Sketcher.Constraint("Tangent", 24, 2, 25, 1),
    Sketcher.Constraint("Tangent", 25, 2, 26, 1),
    Sketcher.Constraint("Tangent", 26, 2, 23, 1),
    Sketcher.Constraint("Horizontal", 7),
    Sketcher.Constraint("Horizontal", 9),
    Sketcher.Constraint("Horizontal", 11),
    Sketcher.Constraint("Horizontal", 13),
    Sketcher.Constraint("Horizontal", 15),
    Sketcher.Constraint("Horizontal", 17),
    Sketcher.Constraint("Horizontal", 19),
    Sketcher.Constraint("Horizontal", 21),
    Sketcher.Constraint("Horizontal", 23),
    Sketcher.Constraint("Horizontal", 25),
    Sketcher.Constraint("Equal", 1, 2),
    Sketcher.Constraint("Equal", 2, 3),
    Sketcher.Constraint("Equal", 3, 4),
    Sketcher.Constraint("Equal", 14, 16),
    Sketcher.Constraint("Equal", 18, 20),
    Sketcher.Constraint("Equal", 22, 24),
    Sketcher.Constraint("Symmetric", 8, 3, 10, 3, -1, 1),
    Sketcher.Constraint("Horizontal", 2, 3, 3, 3),
    Sketcher.Constraint("Horizontal", 1, 3, 4, 3),
    Sketcher.Constraint("Horizontal", 0, 3, 5, 3),
    Sketcher.Constraint("Horizontal", 14, 3, 16, 3),
    Sketcher.Constraint("Horizontal", 22, 3, 24, 3),
    Sketcher.Constraint("Vertical", 1, 3, 3, 3),
    Sketcher.Constraint("Vertical", 2, 3, 4, 3),
    Sketcher.Constraint("Vertical", 14, 3, 20, 3),
    Sketcher.Constraint("Vertical", 12, 3, 22, 3),
    Sketcher.Constraint("Vertical", 18, 3, 24, 3),
    Sketcher.Constraint("Vertical", 16, 3, 26, 3),
    Sketcher.Constraint("Equal", 13, 15),
    Sketcher.Constraint("Diameter", 5, Q("20 mm")),
    Sketcher.Constraint("Radius", 12, Q("2 mm")),
    Sketcher.Constraint("Diameter", 0, Q("19.9 mm")),
    Sketcher.Constraint("Diameter", 1, Q("3.8 mm")),
    Sketcher.Constraint("Diameter", 6, Q("5.8 mm")),
    Sketcher.Constraint("DistanceX", -1, 1, 6, 3, Q("4 mm")),
    Sketcher.Constraint("DistanceY", -1, 1, 6, 3, Q("24 mm")),
    Sketcher.Constraint("Radius", 8, Q("11.375 mm")),
    Sketcher.Constraint("DistanceX", 7, 2, 7, 1, Q("0.05 mm")),
    Sketcher.Constraint("DistanceX", 11, 2, 11, 1, Q("1.85 mm")),
    Sketcher.Constraint("DistanceY", 20, 3, 14, 3, Q("30.9 mm")),
    Sketcher.Constraint("DistanceX", 24, 3, 22, 3, Q("29.2 mm")),
    Sketcher.Constraint("DistanceX", 5, 3, 0, 3, Q("52.85 mm")),
    Sketcher.Constraint("DistanceX", 0, 3, 1, 3, Q("13.965359 mm")),
    Sketcher.Constraint("DistanceY", 0, 3, 1, 3, Q("13.965359 mm")),
    Sketcher.Constraint("DistanceX", 2, 3, 0, 3, Q("13.965359 mm")),
    Sketcher.Constraint("DistanceY", 2, 3, 0, 3, Q("13.965359 mm")),
    Sketcher.Constraint("DistanceX", 1, 3, 12, 3, Q("53.07417 mm")),
    Sketcher.Constraint("DistanceY", 1, 3, 12, 3, Q("1.484641 mm")),
    Sketcher.Constraint("DistanceX", 0, 3, -1, 1, Q("44.879134 mm")),
    Sketcher.Constraint("DistanceY", 0, 3, -1, 1, Q("0.991136 mm")),
])
sketch5.setExpression("Constraints[49]", "Params.sketch5_diameter")
sketch5.setExpression("Constraints[50]", "Params.sketch5_radius")
sketch5.setExpression("Constraints[51]", "Params.sketch5_diameter2")
sketch5.setExpression("Constraints[52]", "Params.sketch5_diameter3")
sketch5.setExpression("Constraints[53]", "Params.sketch5_diameter4")
pocket2 = body.newObject("PartDesign::Pocket", "Pocket001")
pocket2.Profile = sketch5
pocket2.Type = "ThroughAll"
pocket2.Midplane = True

# Sketch on XY plane
sketch6 = body.newObject("Sketcher::SketchObject", "Sketch005")
sketch6.AttachmentSupport = (doc.getObject("XY_Plane"), [""])
sketch6.MapMode = "FlatFace"
add_polygon(sketch6, [(-156.929134, 22.220162), (-176.929134, 19.508864), (-176.929134, -21.491136), (-156.929134, -23.971105)])  # lines 0-3
sketch6.addConstraint([
    Sketcher.Constraint("Vertical", 1),
    Sketcher.Constraint("Vertical", 3),
    Sketcher.Constraint("DistanceY", 1, 2, 1, 1, Q("41 mm")),
    Sketcher.Constraint("DistanceX", 1, 2, 2, 2, Q("20 mm")),
    Sketcher.Constraint("Distance", 0, Q("20.182942 mm")),
    Sketcher.Constraint("Distance", 2, Q("20.15317 mm")),
    Sketcher.Constraint("DistanceY", -1, 1, 3, 2, Q("22.220162 mm")),
    Sketcher.Constraint("DistanceX", 0, 2, -1, 1, Q("176.929134 mm")),
])
sketch6.setExpression("Constraints[6]", "Params.sketch6_height")
pad4 = body.newObject("PartDesign::Pad", "Pad003")
pad4.Profile = sketch6
pad4.setExpression("Length", "Params.pad4_length")
doc.recompute()

fillet = body.newObject("PartDesign::Fillet", "Fillet")
fillet.Base = (pad4, edges_at(pad4, [(-156.929, -23.971, 16.1), (-156.929, 22.22, 16.1)]))
fillet.setExpression("Radius", "Params.fillet_radius")

# Sketch on YZ plane
sketch7 = body.newObject("Sketcher::SketchObject", "Sketch006")
sketch7.AttachmentSupport = (doc.getObject("YZ_Plane"), [""])
sketch7.MapMode = "FlatFace"
sketch7.AttachmentOffset = App.Placement(App.Vector(0, 0, -178.929134), App.Rotation())
add_polygon(sketch7, [(3, 2.9), (-3, 2.9), (-3, 24.9), (3, 24.9)])  # lines 0-3
sketch7.addConstraint([
    Sketcher.Constraint("Horizontal", 0),
    Sketcher.Constraint("Vertical", 1),
    Sketcher.Constraint("Horizontal", 2),
    Sketcher.Constraint("Vertical", 3),
    Sketcher.Constraint("DistanceX", 0, 2, 0, 1, Q("6 mm")),
    Sketcher.Constraint("DistanceY", 1, 1, 1, 2, Q("22 mm")),
    Sketcher.Constraint("DistanceX", 0, 2, -1, 1, Q("3 mm")),
    Sketcher.Constraint("DistanceY", -1, 1, 0, 2, Q("2.9 mm")),
])
sketch7.setExpression("Constraints[8]", "Params.sketch7_width")
sketch7.setExpression("Constraints[9]", "Params.sketch7_height")
pocket3 = body.newObject("PartDesign::Pocket", "Pocket002")
pocket3.Profile = sketch7
pocket3.Type = "UpToFirst"
pocket3.Reversed = True

doc.recompute()
